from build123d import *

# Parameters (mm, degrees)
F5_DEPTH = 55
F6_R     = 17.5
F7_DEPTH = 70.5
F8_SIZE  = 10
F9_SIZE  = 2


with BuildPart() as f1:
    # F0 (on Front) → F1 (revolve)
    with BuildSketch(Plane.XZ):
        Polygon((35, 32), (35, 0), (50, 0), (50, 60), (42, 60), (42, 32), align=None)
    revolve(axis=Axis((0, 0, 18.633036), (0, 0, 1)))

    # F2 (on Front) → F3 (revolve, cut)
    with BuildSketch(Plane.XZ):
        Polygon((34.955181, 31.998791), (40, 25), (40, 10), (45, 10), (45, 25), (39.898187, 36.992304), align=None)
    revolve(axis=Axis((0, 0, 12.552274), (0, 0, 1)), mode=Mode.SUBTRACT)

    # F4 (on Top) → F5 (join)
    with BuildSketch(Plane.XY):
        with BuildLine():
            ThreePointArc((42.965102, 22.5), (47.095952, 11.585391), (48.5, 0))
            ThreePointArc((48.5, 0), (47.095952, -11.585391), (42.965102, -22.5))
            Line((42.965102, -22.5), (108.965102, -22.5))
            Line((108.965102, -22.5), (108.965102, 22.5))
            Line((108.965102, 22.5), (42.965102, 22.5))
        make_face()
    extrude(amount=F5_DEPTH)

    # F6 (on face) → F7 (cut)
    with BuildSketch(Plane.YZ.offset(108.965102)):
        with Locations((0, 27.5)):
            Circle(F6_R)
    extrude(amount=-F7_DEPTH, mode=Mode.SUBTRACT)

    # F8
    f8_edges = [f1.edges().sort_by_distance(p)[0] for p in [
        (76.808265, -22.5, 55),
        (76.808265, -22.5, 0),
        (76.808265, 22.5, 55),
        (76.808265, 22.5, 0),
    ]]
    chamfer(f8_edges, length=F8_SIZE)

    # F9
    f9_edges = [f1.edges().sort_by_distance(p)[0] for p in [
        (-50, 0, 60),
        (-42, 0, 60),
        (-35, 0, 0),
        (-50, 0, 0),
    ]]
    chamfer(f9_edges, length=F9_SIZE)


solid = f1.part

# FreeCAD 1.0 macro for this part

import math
import FreeCAD as App
import Part
import Sketcher

V = App.Vector
Q = App.Units.Quantity


def edges_at(feature, points):
    """Names of the edges that pass closest to the given points."""
    edges = feature.Shape.Edges
    near = lambda p: min(range(len(edges)), key=lambda i: edges[i].distToShape(Part.Vertex(*p))[0])
    return sorted({f"Edge{near(p) + 1}" for p in points})

doc = App.newDocument("Part")
body = doc.addObject("PartDesign::Body", "Body")

# Sketch on XZ plane
sketch1 = body.newObject("Sketcher::SketchObject", "Sketch")
sketch1.AttachmentSupport = (doc.getObject("XZ_Plane"), [""])
sketch1.MapMode = "FlatFace"
sketch1.addGeometry(Part.LineSegment(V(35, 32, 0), V(35, 0, 0)), False)
sketch1.addGeometry(Part.LineSegment(V(35, 0, 0), V(50, 0, 0)), False)
sketch1.addGeometry(Part.LineSegment(V(50, 0, 0), V(50, 60, 0)), False)
sketch1.addGeometry(Part.LineSegment(V(50, 60, 0), V(42, 60, 0)), False)
sketch1.addGeometry(Part.LineSegment(V(42, 60, 0), V(42, 32, 0)), False)
sketch1.addGeometry(Part.LineSegment(V(42, 32, 0), V(35, 32, 0)), False)
sketch1.addConstraint(Sketcher.Constraint("Coincident", 0, 2, 1, 1))
sketch1.addConstraint(Sketcher.Constraint("Coincident", 1, 2, 2, 1))
sketch1.addConstraint(Sketcher.Constraint("Coincident", 2, 2, 3, 1))
sketch1.addConstraint(Sketcher.Constraint("Coincident", 3, 2, 4, 1))
sketch1.addConstraint(Sketcher.Constraint("Coincident", 4, 2, 5, 1))
sketch1.addConstraint(Sketcher.Constraint("Coincident", 5, 2, 0, 1))
sketch1.addConstraint(Sketcher.Constraint("Vertical", 0))
sketch1.addConstraint(Sketcher.Constraint("Horizontal", 1))
sketch1.addConstraint(Sketcher.Constraint("Vertical", 2))
sketch1.addConstraint(Sketcher.Constraint("Horizontal", 3))
sketch1.addConstraint(Sketcher.Constraint("Vertical", 4))
sketch1.addConstraint(Sketcher.Constraint("Horizontal", 5))
sketch1.addConstraint(Sketcher.Constraint("PointOnObject", 0, 2, -1))
sketch1.addConstraint(Sketcher.Constraint("DistanceX", 1, 1, 1, 2, Q("15 mm")))
sketch1.addConstraint(Sketcher.Constraint("DistanceX", 3, 2, 3, 1, Q("8 mm")))
sketch1.addConstraint(Sketcher.Constraint("DistanceY", 0, 2, 0, 1, Q("32 mm")))
sketch1.addConstraint(Sketcher.Constraint("DistanceY", 2, 1, 2, 2, Q("60 mm")))
sketch1.addConstraint(Sketcher.Constraint("DistanceX", -1, 1, 0, 2, Q("35 mm")))
revolution = body.newObject("PartDesign::Revolution", "Revolution")
revolution.Profile = sketch1
revolution.ReferenceAxis = (sketch1, ["V_Axis"])
revolution.Angle = 360

# Sketch on XZ plane
sketch2 = body.newObject("Sketcher::SketchObject", "Sketch001")
sketch2.AttachmentSupport = (doc.getObject("XZ_Plane"), [""])
sketch2.MapMode = "FlatFace"
sketch2.addGeometry(Part.LineSegment(V(35, 32, 0), V(40, 25, 0)), False)
sketch2.addGeometry(Part.LineSegment(V(40, 25, 0), V(40, 10, 0)), False)
sketch2.addGeometry(Part.LineSegment(V(40, 10, 0), V(45, 10, 0)), False)
sketch2.addGeometry(Part.LineSegment(V(45, 10, 0), V(45, 25, 0)), False)
sketch2.addGeometry(Part.LineSegment(V(45, 25, 0), V(40, 37, 0)), False)
sketch2.addGeometry(Part.LineSegment(V(40, 37, 0), V(35, 32, 0)), False)
sketch2.addConstraint(Sketcher.Constraint("Coincident", 0, 2, 1, 1))
sketch2.addConstraint(Sketcher.Constraint("Coincident", 1, 2, 2, 1))
sketch2.addConstraint(Sketcher.Constraint("Coincident", 2, 2, 3, 1))
sketch2.addConstraint(Sketcher.Constraint("Coincident", 3, 2, 4, 1))
sketch2.addConstraint(Sketcher.Constraint("Coincident", 4, 2, 5, 1))
sketch2.addConstraint(Sketcher.Constraint("Coincident", 5, 2, 0, 1))
sketch2.addConstraint(Sketcher.Constraint("Vertical", 1))
sketch2.addConstraint(Sketcher.Constraint("Horizontal", 2))
sketch2.addConstraint(Sketcher.Constraint("Vertical", 3))
sketch2.addConstraint(Sketcher.Constraint("Horizontal", 0, 2, 3, 2))
sketch2.addConstraint(Sketcher.Constraint("DistanceX", 2, 1, 2, 2, Q("5 mm")))
sketch2.addConstraint(Sketcher.Constraint("DistanceY", 1, 2, 1, 1, Q("15 mm")))
sketch2.addConstraint(Sketcher.Constraint("DistanceX", -1, 1, 0, 2, Q("40 mm")))
sketch2.addConstraint(Sketcher.Constraint("DistanceY", -1, 1, 0, 2, Q("25 mm")))
sketch2.addConstraint(Sketcher.Constraint("Distance", 5, Q("7.026271 mm")))
sketch2.addConstraint(Sketcher.Constraint("DistanceX", -1, 1, 5, 2, Q("34.955181 mm")))
sketch2.addConstraint(Sketcher.Constraint("DistanceY", -1, 1, 5, 2, Q("31.998791 mm")))
sketch2.addConstraint(Sketcher.Constraint("Distance", 4, Q("13.032415 mm")))
groove = body.newObject("PartDesign::Groove", "Groove")
groove.Profile = sketch2
groove.ReferenceAxis = (sketch2, ["V_Axis"])
groove.Angle = 360

# Sketch on XY plane
sketch3 = body.newObject("Sketcher::SketchObject", "Sketch002")
sketch3.AttachmentSupport = (doc.getObject("XY_Plane"), [""])
sketch3.MapMode = "FlatFace"
sketch3.addGeometry(Part.ArcOfCircle(Part.Circle(V(0, 0, 0), V(0, 0, 1), 49), math.radians(0), math.radians(28)), False)
sketch3.addGeometry(Part.ArcOfCircle(Part.Circle(V(0, 0, 0), V(0, 0, 1), 49), math.radians(-28), math.radians(0)), False)
sketch3.addGeometry(Part.LineSegment(V(43, -22, 0), V(109, -22, 0)), False)
sketch3.addGeometry(Part.LineSegment(V(109, -22, 0), V(109, 22, 0)), False)
sketch3.addGeometry(Part.LineSegment(V(109, 22, 0), V(43, 22, 0)), False)
sketch3.addConstraint(Sketcher.Constraint("Tangent", 0, 1, 1, 2))
sketch3.addConstraint(Sketcher.Constraint("Coincident", 1, 1, 2, 1))
sketch3.addConstraint(Sketcher.Constraint("Coincident", 2, 2, 3, 1))
sketch3.addConstraint(Sketcher.Constraint("Coincident", 3, 2, 4, 1))
sketch3.addConstraint(Sketcher.Constraint("Coincident", 4, 2, 0, 2))
sketch3.addConstraint(Sketcher.Constraint("Horizontal", 2))
sketch3.addConstraint(Sketcher.Constraint("Vertical", 3))
sketch3.addConstraint(Sketcher.Constraint("Horizontal", 4))
sketch3.addConstraint(Sketcher.Constraint("Coincident", 0, 3, -1, 1))
sketch3.addConstraint(Sketcher.Constraint("Equal", 0, 1))
sketch3.addConstraint(Sketcher.Constraint("PointOnObject", 0, 1, -1))
sketch3.addConstraint(Sketcher.Constraint("Vertical", 1, 1, 4, 2))
sketch3.addConstraint(Sketcher.Constraint("DistanceX", 2, 1, 2, 2, Q("66 mm")))
sketch3.addConstraint(Sketcher.Constraint("DistanceY", 3, 1, 3, 2, Q("45 mm")))
sketch3.addConstraint(Sketcher.Constraint("DistanceX", -1, 1, 0, 1, Q("48.5 mm")))
pad1 = body.newObject("PartDesign::Pad", "Pad")
pad1.Profile = sketch3
pad1.Length = 55

# Sketch on YZ plane
sketch4 = body.newObject("Sketcher::SketchObject", "Sketch003")
sketch4.AttachmentSupport = (doc.getObject("YZ_Plane"), [""])
sketch4.MapMode = "FlatFace"
sketch4.AttachmentOffset = App.Placement(V(0, 0, 108.965102), App.Rotation())
sketch4.addGeometry(Part.Circle(V(0, 28, 0), V(0, 0, 1), 18), False)
sketch4.addConstraint(Sketcher.Constraint("PointOnObject", 0, 3, -2))
sketch4.addConstraint(Sketcher.Constraint("Diameter", 0, Q("35 mm")))
sketch4.addConstraint(Sketcher.Constraint("DistanceY", -1, 1, 0, 3, Q("27.5 mm")))
pocket1 = body.newObject("PartDesign::Pocket", "Pocket")
pocket1.Profile = sketch4
pocket1.Length = 70.5
doc.recompute()

chamfer = body.newObject("PartDesign::Chamfer", "Chamfer")
chamfer.Base = (pocket1, edges_at(pocket1, [
    (76.808, -22.5, 55),
    (76.808, -22.5, 0),
    (76.808, 22.5, 55),
    (76.808, 22.5, 0),
]))
chamfer.Size = 10
doc.recompute()

chamfer2 = body.newObject("PartDesign::Chamfer", "Chamfer001")
chamfer2.Base = (chamfer, edges_at(chamfer, [
    (-50, 0, 60),
    (-42, 0, 60),
    (-35, 0, 0),
    (-50, 0, 0),
]))
chamfer2.Size = 2

doc.recompute()
